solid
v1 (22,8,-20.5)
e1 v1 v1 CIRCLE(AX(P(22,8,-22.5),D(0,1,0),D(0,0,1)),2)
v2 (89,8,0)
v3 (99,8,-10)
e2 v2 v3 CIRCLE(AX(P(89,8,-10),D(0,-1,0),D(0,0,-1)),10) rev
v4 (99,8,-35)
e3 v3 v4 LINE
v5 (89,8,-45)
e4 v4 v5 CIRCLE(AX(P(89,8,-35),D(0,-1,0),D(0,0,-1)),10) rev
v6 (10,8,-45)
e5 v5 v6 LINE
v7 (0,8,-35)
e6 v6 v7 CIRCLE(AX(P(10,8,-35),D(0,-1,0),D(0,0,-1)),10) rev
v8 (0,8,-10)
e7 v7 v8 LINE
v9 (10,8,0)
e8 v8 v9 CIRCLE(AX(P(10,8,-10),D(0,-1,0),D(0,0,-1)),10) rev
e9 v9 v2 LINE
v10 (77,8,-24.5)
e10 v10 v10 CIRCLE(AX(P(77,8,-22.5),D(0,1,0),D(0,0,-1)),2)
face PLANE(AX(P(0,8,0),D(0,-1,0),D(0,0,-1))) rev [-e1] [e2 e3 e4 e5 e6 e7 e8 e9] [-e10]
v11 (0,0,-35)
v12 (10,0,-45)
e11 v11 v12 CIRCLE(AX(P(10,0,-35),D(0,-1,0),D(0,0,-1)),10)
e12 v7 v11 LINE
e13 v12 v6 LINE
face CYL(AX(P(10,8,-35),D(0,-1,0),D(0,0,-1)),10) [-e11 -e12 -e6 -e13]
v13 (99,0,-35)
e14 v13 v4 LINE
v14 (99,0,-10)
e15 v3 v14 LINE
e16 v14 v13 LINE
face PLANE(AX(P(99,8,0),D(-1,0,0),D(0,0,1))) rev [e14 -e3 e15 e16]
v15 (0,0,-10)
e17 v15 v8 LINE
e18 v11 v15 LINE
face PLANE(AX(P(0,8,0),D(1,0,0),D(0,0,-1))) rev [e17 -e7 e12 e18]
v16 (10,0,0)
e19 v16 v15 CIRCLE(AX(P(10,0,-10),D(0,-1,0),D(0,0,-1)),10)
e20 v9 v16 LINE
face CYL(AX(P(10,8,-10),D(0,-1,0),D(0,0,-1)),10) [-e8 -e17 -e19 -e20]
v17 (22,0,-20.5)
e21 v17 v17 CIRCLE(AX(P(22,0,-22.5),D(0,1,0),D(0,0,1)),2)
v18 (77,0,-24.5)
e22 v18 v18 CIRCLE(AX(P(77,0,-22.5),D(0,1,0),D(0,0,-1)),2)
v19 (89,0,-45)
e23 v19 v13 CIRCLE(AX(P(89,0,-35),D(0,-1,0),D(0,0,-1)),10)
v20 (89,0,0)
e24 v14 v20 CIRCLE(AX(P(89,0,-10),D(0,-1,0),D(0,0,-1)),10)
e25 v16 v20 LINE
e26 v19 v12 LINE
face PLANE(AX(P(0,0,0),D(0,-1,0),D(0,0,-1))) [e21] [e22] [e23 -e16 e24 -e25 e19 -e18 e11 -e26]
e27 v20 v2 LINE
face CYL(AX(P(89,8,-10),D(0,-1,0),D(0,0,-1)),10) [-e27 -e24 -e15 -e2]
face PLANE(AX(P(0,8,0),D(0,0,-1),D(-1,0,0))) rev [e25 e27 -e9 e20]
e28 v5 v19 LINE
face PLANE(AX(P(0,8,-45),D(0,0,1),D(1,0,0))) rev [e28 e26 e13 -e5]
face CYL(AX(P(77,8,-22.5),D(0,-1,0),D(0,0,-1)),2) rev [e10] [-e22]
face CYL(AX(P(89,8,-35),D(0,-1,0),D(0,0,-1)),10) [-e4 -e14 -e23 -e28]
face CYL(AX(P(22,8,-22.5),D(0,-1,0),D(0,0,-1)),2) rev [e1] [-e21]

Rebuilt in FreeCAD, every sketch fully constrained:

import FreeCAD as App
import Part
import Sketcher

V = App.Vector


def edges_at(feature, points):
    """Names of the edges that pass closest to the given points."""
    edges = feature.Shape.Edges
    near = lambda p: min(range(len(edges)), key=lambda i: edges[i].distToShape(Part.Vertex(*p))[0])
    return sorted({f"Edge{near(p) + 1}" for p in points})

doc = App.newDocument("Part")
body = doc.addObject("PartDesign::Body", "Body")

# Sketch on XZ plane
sketch1 = doc.addObject("Sketcher::SketchObject", "Sketch")
body.addObject(sketch1)
sketch1.AttachmentSupport = (doc.XZ_Plane, [""])
sketch1.MapMode = "FlatFace"
sketch1.addGeometry([
    Part.LineSegment(V(0, -45, 0), V(0, 0, 0)),  # 0
    Part.LineSegment(V(0, 0, 0), V(99, 0, 0)),  # 1
    Part.LineSegment(V(99, 0, 0), V(99, -45, 0)),  # 2
    Part.LineSegment(V(99, -45, 0), V(0, -45, 0)),  # 3
    Part.Circle(V(22, -22.5, 0), V(0, 0, 1), 2),  # 4
    Part.Circle(V(77, -22.5, 0), V(0, 0, 1), 2),  # 5
], False)
sketch1.addConstraint([
    Sketcher.Constraint("Coincident", 0, 2, 1, 1),
    Sketcher.Constraint("Coincident", 1, 2, 2, 1),
    Sketcher.Constraint("Coincident", 2, 2, 3, 1),
    Sketcher.Constraint("Coincident", 3, 2, 0, 1),
    Sketcher.Constraint("Vertical", 0),
    Sketcher.Constraint("Horizontal", 1),
    Sketcher.Constraint("Vertical", 2),
    Sketcher.Constraint("Horizontal", 3),
    Sketcher.Constraint("Coincident", 0, 2, -1, 1),
    Sketcher.Constraint("Equal", 4, 5),
    Sketcher.Constraint("Horizontal", 4, 3, 5, 3),
    Sketcher.Constraint("Diameter", 4, 4.0),
    Sketcher.Constraint("DistanceX", 1, 1, 1, 2, 99.0),
    Sketcher.Constraint("DistanceY", 0, 1, 0, 2, 45.0),
    Sketcher.Constraint("DistanceX", -1, 1, 4, 3, 22.0),
    Sketcher.Constraint("DistanceX", -1, 1, 5, 3, 77.0),
    Sketcher.Constraint("DistanceY", 4, 3, -1, 1, 22.5),
])
pad1 = doc.addObject("PartDesign::Pad", "Pad")
body.addObject(pad1)
pad1.Profile = sketch1
pad1.Length = 8
pad1.Reversed = True
doc.recompute()

fillet = doc.addObject("PartDesign::Fillet", "Fillet")
body.addObject(fillet)
fillet.Base = (pad1, edges_at(pad1, [
    (0, 4, -45),
    (99, 4, -45),
    (99, 4, 0),
    (0, 4, 0),
]))
fillet.Radius = 10

doc.recompute()
